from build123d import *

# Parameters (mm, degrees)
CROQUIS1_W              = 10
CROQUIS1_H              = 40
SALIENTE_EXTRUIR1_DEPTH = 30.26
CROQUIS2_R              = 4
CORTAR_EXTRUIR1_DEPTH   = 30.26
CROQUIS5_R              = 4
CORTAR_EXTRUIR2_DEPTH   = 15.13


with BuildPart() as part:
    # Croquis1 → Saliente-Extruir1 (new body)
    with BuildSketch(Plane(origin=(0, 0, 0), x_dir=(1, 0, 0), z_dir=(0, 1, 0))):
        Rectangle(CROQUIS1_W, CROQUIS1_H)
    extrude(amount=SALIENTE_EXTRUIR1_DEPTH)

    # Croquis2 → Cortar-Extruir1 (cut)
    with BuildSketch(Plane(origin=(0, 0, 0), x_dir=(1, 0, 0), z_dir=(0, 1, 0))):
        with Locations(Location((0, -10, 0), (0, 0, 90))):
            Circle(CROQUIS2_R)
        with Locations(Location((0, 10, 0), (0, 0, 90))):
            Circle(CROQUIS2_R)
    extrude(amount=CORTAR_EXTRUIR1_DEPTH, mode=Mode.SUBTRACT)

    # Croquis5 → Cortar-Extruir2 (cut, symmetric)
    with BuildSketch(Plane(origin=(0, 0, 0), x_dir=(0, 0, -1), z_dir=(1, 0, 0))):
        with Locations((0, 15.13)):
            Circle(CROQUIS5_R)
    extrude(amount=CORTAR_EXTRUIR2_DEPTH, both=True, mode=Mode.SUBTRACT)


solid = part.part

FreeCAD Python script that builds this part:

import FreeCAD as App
import Part
import Sketcher
Q = App.Units.Quantity

doc = App.newDocument("Part")
body = doc.addObject("PartDesign::Body", "Body")

# Sketch on XZ plane
sketch1 = body.newObject("Sketcher::SketchObject", "Sketch")
sketch1.AttachmentSupport = (doc.getObject("XZ_Plane"), [""])
sketch1.MapMode = "FlatFace"
sketch1.addGeometry(Part.LineSegment(App.Vector(-5, -20, 0), App.Vector(-5, 20, 0)), False)
sketch1.addGeometry(Part.LineSegment(App.Vector(-5, 20, 0), App.Vector(5, 20, 0)), False)
sketch1.addGeometry(Part.LineSegment(App.Vector(5, 20, 0), App.Vector(5, -20, 0)), False)
sketch1.addGeometry(Part.LineSegment(App.Vector(5, -20, 0), App.Vector(-5, -20, 0)), False)
sketch1.addConstraint(Sketcher.Constraint("Coincident", 0, 2, 1, 1))
sketch1.addConstraint(Sketcher.Constraint("Coincident", 1, 2, 2, 1))
sketch1.addConstraint(Sketcher.Constraint("Coincident", 2, 2, 3, 1))
sketch1.addConstraint(Sketcher.Constraint("Coincident", 3, 2, 0, 1))
sketch1.addConstraint(Sketcher.Constraint("Vertical", 0))
sketch1.addConstraint(Sketcher.Constraint("Horizontal", 1))
sketch1.addConstraint(Sketcher.Constraint("Vertical", 2))
sketch1.addConstraint(Sketcher.Constraint("Horizontal", 3))
sketch1.addConstraint(Sketcher.Constraint("Symmetric", 0, 2, 2, 2, -1, 1))
sketch1.addConstraint(Sketcher.Constraint("DistanceX", 1, 1, 1, 2, Q("10 mm")))
sketch1.addConstraint(Sketcher.Constraint("DistanceY", 0, 1, 0, 2, Q("40 mm")))
pad1 = body.newObject("PartDesign::Pad", "Pad")
pad1.Profile = sketch1
pad1.Length = 30.26
pad1.Reversed = True

# Sketch on XZ plane
sketch2 = body.newObject("Sketcher::SketchObject", "Sketch001")
sketch2.AttachmentSupport = (doc.getObject("XZ_Plane"), [""])
sketch2.MapMode = "FlatFace"
sketch2.addGeometry(Part.Circle(App.Vector(0, 10, 0), App.Vector(0, 0, 1), 4), False)
sketch2.addGeometry(Part.Circle(App.Vector(0, -10, 0), App.Vector(0, 0, 1), 4), False)
sketch2.addConstraint(Sketcher.Constraint("Equal", 0, 1))
sketch2.addConstraint(Sketcher.Constraint("Symmetric", 0, 3, 1, 3, -1, 1))
sketch2.addConstraint(Sketcher.Constraint("PointOnObject", 0, 3, -2))
sketch2.addConstraint(Sketcher.Constraint("Diameter", 0, Q("8 mm")))
sketch2.addConstraint(Sketcher.Constraint("DistanceY", -1, 1, 0, 3, Q("10 mm")))
pocket1 = body.newObject("PartDesign::Pocket", "Pocket")
pocket1.Profile = sketch2
pocket1.Length = 30.26

# Sketch on YZ plane
sketch3 = body.newObject("Sketcher::SketchObject", "Sketch002")
sketch3.AttachmentSupport = (doc.getObject("YZ_Plane"), [""])
sketch3.MapMode = "FlatFace"
sketch3.addGeometry(Part.Circle(App.Vector(15.13, 0, 0), App.Vector(0, 0, 1), 4), False)
sketch3.addConstraint(Sketcher.Constraint("PointOnObject", 0, 3, -1))
sketch3.addConstraint(Sketcher.Constraint("Diameter", 0, Q("8 mm")))
sketch3.addConstraint(Sketcher.Constraint("DistanceX", -1, 1, 0, 3, Q("15.13 mm")))
pocket2 = body.newObject("PartDesign::Pocket", "Pocket001")
pocket2.Profile = sketch3
pocket2.Length = 30.26
pocket2.Midplane = True

doc.recompute()
